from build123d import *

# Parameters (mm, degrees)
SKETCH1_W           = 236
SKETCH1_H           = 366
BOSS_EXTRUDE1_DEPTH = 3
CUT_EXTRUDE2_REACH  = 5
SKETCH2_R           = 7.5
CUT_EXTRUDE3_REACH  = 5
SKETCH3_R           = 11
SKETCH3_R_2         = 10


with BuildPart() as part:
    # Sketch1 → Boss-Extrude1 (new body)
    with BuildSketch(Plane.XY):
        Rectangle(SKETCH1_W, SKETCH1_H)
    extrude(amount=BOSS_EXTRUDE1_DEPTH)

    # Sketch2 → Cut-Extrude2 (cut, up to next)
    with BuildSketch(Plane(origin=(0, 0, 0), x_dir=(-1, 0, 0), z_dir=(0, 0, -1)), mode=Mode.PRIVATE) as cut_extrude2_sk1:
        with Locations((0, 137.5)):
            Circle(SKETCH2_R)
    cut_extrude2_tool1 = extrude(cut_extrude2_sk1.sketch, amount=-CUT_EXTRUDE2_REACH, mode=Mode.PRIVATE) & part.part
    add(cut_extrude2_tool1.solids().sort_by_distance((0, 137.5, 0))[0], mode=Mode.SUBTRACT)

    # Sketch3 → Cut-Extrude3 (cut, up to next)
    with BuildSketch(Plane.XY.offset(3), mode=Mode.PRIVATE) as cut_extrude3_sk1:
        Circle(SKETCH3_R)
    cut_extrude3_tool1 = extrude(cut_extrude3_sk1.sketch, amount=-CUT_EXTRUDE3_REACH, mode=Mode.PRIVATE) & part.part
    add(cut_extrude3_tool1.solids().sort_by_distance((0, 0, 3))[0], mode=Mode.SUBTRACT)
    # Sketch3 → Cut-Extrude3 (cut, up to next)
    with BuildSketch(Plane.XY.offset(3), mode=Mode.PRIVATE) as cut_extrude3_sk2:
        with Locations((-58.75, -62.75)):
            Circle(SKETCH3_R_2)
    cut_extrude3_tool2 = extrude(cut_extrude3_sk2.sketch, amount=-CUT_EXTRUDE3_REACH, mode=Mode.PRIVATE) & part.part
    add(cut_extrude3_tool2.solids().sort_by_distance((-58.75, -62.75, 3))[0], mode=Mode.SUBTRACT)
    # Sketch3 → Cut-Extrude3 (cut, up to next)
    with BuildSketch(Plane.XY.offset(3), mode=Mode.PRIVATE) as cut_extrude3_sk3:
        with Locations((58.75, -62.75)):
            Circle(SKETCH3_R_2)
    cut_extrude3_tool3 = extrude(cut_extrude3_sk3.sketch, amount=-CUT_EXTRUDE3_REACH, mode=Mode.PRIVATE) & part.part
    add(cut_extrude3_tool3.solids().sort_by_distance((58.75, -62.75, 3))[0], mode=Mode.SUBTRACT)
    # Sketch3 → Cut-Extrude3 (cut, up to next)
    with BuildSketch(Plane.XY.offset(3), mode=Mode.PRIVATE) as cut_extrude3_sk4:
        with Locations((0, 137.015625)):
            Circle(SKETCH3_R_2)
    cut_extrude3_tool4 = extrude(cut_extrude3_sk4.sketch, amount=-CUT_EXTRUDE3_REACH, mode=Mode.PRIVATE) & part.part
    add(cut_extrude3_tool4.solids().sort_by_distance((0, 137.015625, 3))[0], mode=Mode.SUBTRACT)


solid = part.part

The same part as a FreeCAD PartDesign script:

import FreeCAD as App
import Part
import Sketcher
from FreeCAD import Vector
Q = App.Units.Quantity

doc = App.newDocument("Part")
body = doc.addObject("PartDesign::Body", "Body")

sketch1 = body.newObject("Sketcher::SketchObject", "Sketch")
sketch1.AttachmentSupport = (doc.getObject("XY_Plane"), [""])
sketch1.MapMode = "FlatFace"
sketch1.addGeometry([
    Part.LineSegment(Vector(-118, 183, 0), Vector(-118, -183, 0)),
    Part.LineSegment(Vector(-118, -183, 0), Vector(118, -183, 0)),
    Part.LineSegment(Vector(118, -183, 0), Vector(118, 183, 0)),
    Part.LineSegment(Vector(118, 183, 0), Vector(-118, 183, 0)),
], False)
sketch1.addConstraint([
    Sketcher.Constraint("Coincident", 0, 2, 1, 1),
    Sketcher.Constraint("Coincident", 1, 2, 2, 1),
    Sketcher.Constraint("Coincident", 2, 2, 3, 1),
    Sketcher.Constraint("Coincident", 3, 2, 0, 1),
    Sketcher.Constraint("Vertical", 0),
    Sketcher.Constraint("Horizontal", 1),
    Sketcher.Constraint("Vertical", 2),
    Sketcher.Constraint("Horizontal", 3),
    Sketcher.Constraint("Symmetric", 0, 2, 2, 2, -1, 1),
    Sketcher.Constraint("DistanceX", 1, 1, 1, 2, Q("236 mm")),
    Sketcher.Constraint("DistanceY", 0, 2, 0, 1, Q("366 mm")),
])
pad1 = body.newObject("PartDesign::Pad", "Pad")
pad1.Profile = sketch1
pad1.Length = 3

sketch2 = body.newObject("Sketcher::SketchObject", "Sketch001")
sketch2.AttachmentSupport = (doc.getObject("XY_Plane"), [""])
sketch2.MapMode = "FlatFace"
sketch2.addGeometry(Part.Circle(Vector(0, 138, 0), Vector(0, 0, 1), 8), False)
sketch2.addConstraint([
    Sketcher.Constraint("PointOnObject", 0, 3, -2),
    Sketcher.Constraint("Diameter", 0, Q("15 mm")),
    Sketcher.Constraint("DistanceY", -1, 1, 0, 3, Q("137.5 mm")),
])
pocket1 = body.newObject("PartDesign::Pocket", "Pocket")
pocket1.Profile = sketch2
pocket1.Type = "UpToFirst"
pocket1.Reversed = True

sketch3 = body.newObject("Sketcher::SketchObject", "Sketch002")
sketch3.AttachmentSupport = (doc.getObject("XY_Plane"), [""])
sketch3.MapMode = "FlatFace"
sketch3.AttachmentOffset = App.Placement(Vector(0, 0, 3), App.Rotation())
sketch3.addGeometry(Part.Circle(Vector(0, 0, 0), Vector(0, 0, 1), 11), False)
sketch3.addConstraint([
    Sketcher.Constraint("Coincident", 0, 3, -1, 1),
    Sketcher.Constraint("Diameter", 0, Q("22 mm")),
])
pocket2 = body.newObject("PartDesign::Pocket", "Pocket001")
pocket2.Profile = sketch3
pocket2.Type = "UpToFirst"

sketch4 = body.newObject("Sketcher::SketchObject", "Sketch003")
sketch4.AttachmentSupport = (doc.getObject("XY_Plane"), [""])
sketch4.MapMode = "FlatFace"
sketch4.AttachmentOffset = App.Placement(Vector(0, 0, 3), App.Rotation())
sketch4.addGeometry(Part.Circle(Vector(-59, -63, 0), Vector(0, 0, 1), 10), False)
sketch4.addConstraint([
    Sketcher.Constraint("Diameter", 0, Q("20 mm")),
    Sketcher.Constraint("DistanceX", 0, 3, -1, 1, Q("58.75 mm")),
    Sketcher.Constraint("DistanceY", 0, 3, -1, 1, Q("62.75 mm")),
])
pocket3 = body.newObject("PartDesign::Pocket", "Pocket002")
pocket3.Profile = sketch4
pocket3.Type = "UpToFirst"

sketch5 = body.newObject("Sketcher::SketchObject", "Sketch004")
sketch5.AttachmentSupport = (doc.getObject("XY_Plane"), [""])
sketch5.MapMode = "FlatFace"
sketch5.AttachmentOffset = App.Placement(Vector(0, 0, 3), App.Rotation())
sketch5.addGeometry(Part.Circle(Vector(59, -63, 0), Vector(0, 0, 1), 10), False)
sketch5.addConstraint([
    Sketcher.Constraint("Diameter", 0, Q("20 mm")),
    Sketcher.Constraint("DistanceX", -1, 1, 0, 3, Q("58.75 mm")),
    Sketcher.Constraint("DistanceY", 0, 3, -1, 1, Q("62.75 mm")),
])
pocket4 = body.newObject("PartDesign::Pocket", "Pocket003")
pocket4.Profile = sketch5
pocket4.Type = "UpToFirst"

sketch6 = body.newObject("Sketcher::SketchObject", "Sketch005")
sketch6.AttachmentSupport = (doc.getObject("XY_Plane"), [""])
sketch6.MapMode = "FlatFace"
sketch6.AttachmentOffset = App.Placement(Vector(0, 0, 3), App.Rotation())
sketch6.addGeometry(Part.Circle(Vector(0, 137, 0), Vector(0, 0, 1), 10), False)
sketch6.addConstraint([
    Sketcher.Constraint("PointOnObject", 0, 3, -2),
    Sketcher.Constraint("Diameter", 0, Q("20 mm")),
    Sketcher.Constraint("DistanceY", -1, 1, 0, 3, Q("137.015625 mm")),
])
pocket5 = body.newObject("PartDesign::Pocket", "Pocket004")
pocket5.Profile = sketch6
pocket5.Length = 3

doc.recompute()
